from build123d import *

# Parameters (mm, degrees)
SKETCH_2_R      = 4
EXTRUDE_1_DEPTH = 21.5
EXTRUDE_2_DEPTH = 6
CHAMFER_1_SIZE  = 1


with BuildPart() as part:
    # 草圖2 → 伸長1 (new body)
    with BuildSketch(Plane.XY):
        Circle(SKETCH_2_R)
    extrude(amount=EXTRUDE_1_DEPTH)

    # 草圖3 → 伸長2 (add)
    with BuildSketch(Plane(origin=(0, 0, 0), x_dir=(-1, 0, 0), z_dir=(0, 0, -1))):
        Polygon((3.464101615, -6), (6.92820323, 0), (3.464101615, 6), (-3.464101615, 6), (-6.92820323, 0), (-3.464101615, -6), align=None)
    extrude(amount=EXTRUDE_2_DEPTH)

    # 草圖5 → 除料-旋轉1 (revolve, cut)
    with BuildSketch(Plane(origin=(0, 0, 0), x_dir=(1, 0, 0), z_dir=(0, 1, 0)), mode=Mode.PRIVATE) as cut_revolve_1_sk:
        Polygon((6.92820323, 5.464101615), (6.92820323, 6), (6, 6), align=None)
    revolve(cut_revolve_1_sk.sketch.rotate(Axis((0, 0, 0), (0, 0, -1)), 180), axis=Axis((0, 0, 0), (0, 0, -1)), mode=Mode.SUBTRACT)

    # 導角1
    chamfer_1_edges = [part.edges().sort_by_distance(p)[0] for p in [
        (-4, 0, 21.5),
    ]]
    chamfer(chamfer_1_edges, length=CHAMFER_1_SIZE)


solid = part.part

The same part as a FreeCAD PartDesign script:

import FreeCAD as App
import Part
import Sketcher
from FreeCAD import Vector
Q = App.Units.Quantity


def edges_at(feature, points):
    """Names of the edges that pass closest to the given points."""
    edges = feature.Shape.Edges
    near = lambda p: min(range(len(edges)), key=lambda i: edges[i].distToShape(Part.Vertex(*p))[0])
    return sorted({f"Edge{near(p) + 1}" for p in points})

doc = App.newDocument("Part")
body = doc.addObject("PartDesign::Body", "Body")

sketch1 = doc.addObject("Sketcher::SketchObject", "Sketch")
body.addObject(sketch1)
sketch1.AttachmentSupport = (doc.XY_Plane, [""])
sketch1.MapMode = "FlatFace"
sketch1.addGeometry(Part.Circle(Vector(0, 0, 0), Vector(0, 0, 1), 4), False)
sketch1.addConstraint(Sketcher.Constraint("Coincident", 0, 3, -1, 1))
sketch1.addConstraint(Sketcher.Constraint("Diameter", 0, Q("8 mm")))
pad1 = doc.addObject("PartDesign::Pad", "Pad")
body.addObject(pad1)
pad1.Profile = sketch1
pad1.Length = 21.5

sketch2 = doc.addObject("Sketcher::SketchObject", "Sketch001")
body.addObject(sketch2)
sketch2.AttachmentSupport = (doc.XY_Plane, [""])
sketch2.MapMode = "FlatFace"
sketch2.addGeometry(Part.LineSegment(Vector(-3, -6, 0), Vector(-7, 0, 0)), False)
sketch2.addGeometry(Part.LineSegment(Vector(-7, 0, 0), Vector(-3, 6, 0)), False)
sketch2.addGeometry(Part.LineSegment(Vector(-3, 6, 0), Vector(3, 6, 0)), False)
sketch2.addGeometry(Part.LineSegment(Vector(3, 6, 0), Vector(7, 0, 0)), False)
sketch2.addGeometry(Part.LineSegment(Vector(7, 0, 0), Vector(3, -6, 0)), False)
sketch2.addGeometry(Part.LineSegment(Vector(3, -6, 0), Vector(-3, -6, 0)), False)
sketch2.addConstraint(Sketcher.Constraint("Coincident", 0, 2, 1, 1))
sketch2.addConstraint(Sketcher.Constraint("Coincident", 1, 2, 2, 1))
sketch2.addConstraint(Sketcher.Constraint("Coincident", 2, 2, 3, 1))
sketch2.addConstraint(Sketcher.Constraint("Coincident", 3, 2, 4, 1))
sketch2.addConstraint(Sketcher.Constraint("Coincident", 4, 2, 5, 1))
sketch2.addConstraint(Sketcher.Constraint("Coincident", 5, 2, 0, 1))
sketch2.addConstraint(Sketcher.Constraint("Horizontal", 2))
sketch2.addConstraint(Sketcher.Constraint("Horizontal", 5))
sketch2.addConstraint(Sketcher.Constraint("Symmetric", 0, 2, 3, 2, -1, 1))
sketch2.addConstraint(Sketcher.Constraint("Symmetric", 1, 2, 4, 2, -1, 1))
sketch2.addConstraint(Sketcher.Constraint("PointOnObject", 0, 2, -1))
sketch2.addConstraint(Sketcher.Constraint("Parallel", 0, 3))
sketch2.addConstraint(Sketcher.Constraint("Vertical", 2, 2, 4, 2))
sketch2.addConstraint(Sketcher.Constraint("Angle", 0, Q("120 deg")))
sketch2.addConstraint(Sketcher.Constraint("DistanceY", -1, 1, 1, 2, Q("6 mm")))
sketch2.addConstraint(Sketcher.Constraint("DistanceX", 1, 2, -1, 1, Q("3.464102 mm")))
pad2 = doc.addObject("PartDesign::Pad", "Pad001")
body.addObject(pad2)
pad2.Profile = sketch2
pad2.Length = 6
pad2.Reversed = True

sketch3 = doc.addObject("Sketcher::SketchObject", "Sketch002")
body.addObject(sketch3)
sketch3.AttachmentSupport = (doc.XZ_Plane, [""])
sketch3.MapMode = "FlatFace"
sketch3.addGeometry(Part.LineSegment(Vector(6.9, -5.5, 0), Vector(6.9, -6, 0)), False)
sketch3.addGeometry(Part.LineSegment(Vector(6.9, -6, 0), Vector(6, -6, 0)), False)
sketch3.addGeometry(Part.LineSegment(Vector(6, -6, 0), Vector(6.9, -5.5, 0)), False)
sketch3.addConstraint(Sketcher.Constraint("Coincident", 0, 2, 1, 1))
sketch3.addConstraint(Sketcher.Constraint("Coincident", 1, 2, 2, 1))
sketch3.addConstraint(Sketcher.Constraint("Coincident", 2, 2, 0, 1))
sketch3.addConstraint(Sketcher.Constraint("Vertical", 0))
sketch3.addConstraint(Sketcher.Constraint("Horizontal", 1))
sketch3.addConstraint(Sketcher.Constraint("Angle", 2, Q("30 deg")))
sketch3.addConstraint(Sketcher.Constraint("DistanceY", 0, 2, -1, 1, Q("6 mm")))
sketch3.addConstraint(Sketcher.Constraint("DistanceX", -1, 1, 1, 2, Q("6 mm")))
sketch3.addConstraint(Sketcher.Constraint("DistanceY", 0, 2, 0, 1, Q("0.535898 mm")))
groove = doc.addObject("PartDesign::Groove", "Groove")
body.addObject(groove)
groove.Profile = sketch3
groove.ReferenceAxis = (sketch3, ["V_Axis"])
groove.Angle = 360
doc.recompute()

chamfer = doc.addObject("PartDesign::Chamfer", "Chamfer")
body.addObject(chamfer)
chamfer.Base = (groove, edges_at(groove, [(-4, 0, 21.5)]))
chamfer.Size = 1

doc.recompute()
